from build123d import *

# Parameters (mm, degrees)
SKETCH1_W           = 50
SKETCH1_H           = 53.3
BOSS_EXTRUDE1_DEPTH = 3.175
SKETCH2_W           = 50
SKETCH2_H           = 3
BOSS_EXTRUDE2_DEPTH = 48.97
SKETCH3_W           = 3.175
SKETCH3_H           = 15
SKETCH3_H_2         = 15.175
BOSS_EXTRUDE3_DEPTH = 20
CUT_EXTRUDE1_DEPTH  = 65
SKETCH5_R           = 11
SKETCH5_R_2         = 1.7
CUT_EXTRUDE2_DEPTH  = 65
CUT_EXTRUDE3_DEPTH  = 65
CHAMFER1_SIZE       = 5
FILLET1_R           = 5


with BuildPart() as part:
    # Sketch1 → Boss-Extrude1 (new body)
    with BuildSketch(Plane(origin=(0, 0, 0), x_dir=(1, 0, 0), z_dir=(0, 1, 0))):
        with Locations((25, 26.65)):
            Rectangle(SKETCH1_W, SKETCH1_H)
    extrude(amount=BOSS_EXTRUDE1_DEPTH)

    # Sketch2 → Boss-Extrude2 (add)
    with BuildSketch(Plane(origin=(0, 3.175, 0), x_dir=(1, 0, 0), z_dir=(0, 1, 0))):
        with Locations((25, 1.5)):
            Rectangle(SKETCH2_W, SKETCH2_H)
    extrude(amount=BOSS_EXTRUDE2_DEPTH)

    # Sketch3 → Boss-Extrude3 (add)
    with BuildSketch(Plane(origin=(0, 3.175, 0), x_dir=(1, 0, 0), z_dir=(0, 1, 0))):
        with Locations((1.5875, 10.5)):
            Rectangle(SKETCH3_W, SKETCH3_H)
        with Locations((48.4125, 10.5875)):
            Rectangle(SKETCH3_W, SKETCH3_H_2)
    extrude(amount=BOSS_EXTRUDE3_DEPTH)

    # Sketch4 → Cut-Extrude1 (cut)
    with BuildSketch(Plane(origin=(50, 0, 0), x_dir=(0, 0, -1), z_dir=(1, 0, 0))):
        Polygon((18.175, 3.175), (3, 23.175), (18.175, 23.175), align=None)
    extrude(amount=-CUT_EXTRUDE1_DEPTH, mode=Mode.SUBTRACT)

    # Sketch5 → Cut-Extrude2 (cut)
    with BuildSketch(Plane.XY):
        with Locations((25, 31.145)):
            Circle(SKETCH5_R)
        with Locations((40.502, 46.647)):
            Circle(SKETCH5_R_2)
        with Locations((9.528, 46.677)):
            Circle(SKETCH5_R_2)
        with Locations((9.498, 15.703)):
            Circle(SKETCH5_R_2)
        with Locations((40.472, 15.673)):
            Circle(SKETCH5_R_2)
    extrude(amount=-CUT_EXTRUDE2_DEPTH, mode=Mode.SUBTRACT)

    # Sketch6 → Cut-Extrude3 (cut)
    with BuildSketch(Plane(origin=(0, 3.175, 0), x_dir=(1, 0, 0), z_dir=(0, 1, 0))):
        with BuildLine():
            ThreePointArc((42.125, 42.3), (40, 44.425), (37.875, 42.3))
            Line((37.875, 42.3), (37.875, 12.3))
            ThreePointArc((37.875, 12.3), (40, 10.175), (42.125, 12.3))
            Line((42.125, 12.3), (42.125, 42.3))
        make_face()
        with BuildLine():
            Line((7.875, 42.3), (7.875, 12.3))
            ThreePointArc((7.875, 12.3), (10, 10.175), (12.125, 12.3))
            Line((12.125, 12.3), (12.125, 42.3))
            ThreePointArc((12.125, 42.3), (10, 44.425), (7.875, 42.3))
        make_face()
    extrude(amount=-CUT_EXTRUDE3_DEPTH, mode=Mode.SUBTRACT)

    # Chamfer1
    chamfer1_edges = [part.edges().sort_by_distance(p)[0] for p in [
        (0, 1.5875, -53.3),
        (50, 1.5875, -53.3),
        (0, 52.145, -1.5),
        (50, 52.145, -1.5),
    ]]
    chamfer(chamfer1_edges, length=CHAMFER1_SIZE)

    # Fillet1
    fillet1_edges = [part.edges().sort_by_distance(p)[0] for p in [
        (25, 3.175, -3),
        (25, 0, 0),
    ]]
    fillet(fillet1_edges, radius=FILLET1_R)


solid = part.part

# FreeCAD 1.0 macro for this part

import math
import FreeCAD as App
import Part
import Sketcher
Q = App.Units.Quantity


def edges_at(feature, points):
    """Names of the edges that pass closest to the given points."""
    edges = feature.Shape.Edges
    near = lambda p: min(range(len(edges)), key=lambda i: edges[i].distToShape(Part.Vertex(*p))[0])
    return sorted({f"Edge{near(p) + 1}" for p in points})

doc = App.newDocument("Part")
body = doc.addObject("PartDesign::Body", "Body")

# Sketch on XZ plane
sketch1 = body.newObject("Sketcher::SketchObject", "Sketch")
sketch1.AttachmentSupport = (doc.getObject("XZ_Plane"), [""])
sketch1.MapMode = "FlatFace"
sketch1.addGeometry([
    Part.LineSegment(App.Vector(0, -53, 0), App.Vector(0, 0, 0)),
    Part.LineSegment(App.Vector(0, 0, 0), App.Vector(50, 0, 0)),
    Part.LineSegment(App.Vector(50, 0, 0), App.Vector(50, -53, 0)),
    Part.LineSegment(App.Vector(50, -53, 0), App.Vector(0, -53, 0)),
], False)
sketch1.addConstraint([
    Sketcher.Constraint("Coincident", 0, 2, 1, 1),
    Sketcher.Constraint("Coincident", 1, 2, 2, 1),
    Sketcher.Constraint("Coincident", 2, 2, 3, 1),
    Sketcher.Constraint("Coincident", 3, 2, 0, 1),
    Sketcher.Constraint("Vertical", 0),
    Sketcher.Constraint("Horizontal", 1),
    Sketcher.Constraint("Vertical", 2),
    Sketcher.Constraint("Horizontal", 3),
    Sketcher.Constraint("Coincident", 0, 2, -1, 1),
    Sketcher.Constraint("DistanceX", 1, 1, 1, 2, Q("50 mm")),
    Sketcher.Constraint("DistanceY", 0, 1, 0, 2, Q("53.3 mm")),
])
pad1 = body.newObject("PartDesign::Pad", "Pad")
pad1.Profile = sketch1
pad1.Length = 3.175
pad1.Reversed = True

# Sketch on XZ plane
sketch2 = body.newObject("Sketcher::SketchObject", "Sketch001")
sketch2.AttachmentSupport = (doc.getObject("XZ_Plane"), [""])
sketch2.MapMode = "FlatFace"
sketch2.AttachmentOffset = App.Placement(App.Vector(0, 0, -3.175), App.Rotation())
sketch2.addGeometry([
    Part.LineSegment(App.Vector(0, -3, 0), App.Vector(0, 0, 0)),
    Part.LineSegment(App.Vector(0, 0, 0), App.Vector(50, 0, 0)),
    Part.LineSegment(App.Vector(50, 0, 0), App.Vector(50, -3, 0)),
    Part.LineSegment(App.Vector(50, -3, 0), App.Vector(0, -3, 0)),
], False)
sketch2.addConstraint([
    Sketcher.Constraint("Coincident", 0, 2, 1, 1),
    Sketcher.Constraint("Coincident", 1, 2, 2, 1),
    Sketcher.Constraint("Coincident", 2, 2, 3, 1),
    Sketcher.Constraint("Coincident", 3, 2, 0, 1),
    Sketcher.Constraint("Vertical", 0),
    Sketcher.Constraint("Horizontal", 1),
    Sketcher.Constraint("Vertical", 2),
    Sketcher.Constraint("Horizontal", 3),
    Sketcher.Constraint("Coincident", 0, 2, -1, 1),
    Sketcher.Constraint("DistanceX", 1, 1, 1, 2, Q("50 mm")),
    Sketcher.Constraint("DistanceY", 0, 1, 0, 2, Q("3 mm")),
])
pad2 = body.newObject("PartDesign::Pad", "Pad001")
pad2.Profile = sketch2
pad2.Length = 48.97
pad2.Reversed = True

# Sketch on XZ plane
sketch3 = body.newObject("Sketcher::SketchObject", "Sketch002")
sketch3.AttachmentSupport = (doc.getObject("XZ_Plane"), [""])
sketch3.MapMode = "FlatFace"
sketch3.AttachmentOffset = App.Placement(App.Vector(0, 0, -3.175), App.Rotation())
sketch3.addGeometry([
    Part.LineSegment(App.Vector(0, -18, 0), App.Vector(0, -3, 0)),  # 0
    Part.LineSegment(App.Vector(0, -3, 0), App.Vector(3.2, -3, 0)),  # 1
    Part.LineSegment(App.Vector(3.2, -3, 0), App.Vector(3.2, -18, 0)),  # 2
    Part.LineSegment(App.Vector(3.2, -18, 0), App.Vector(0, -18, 0)),  # 3
    Part.LineSegment(App.Vector(46.8, -18.2, 0), App.Vector(46.8, -3, 0)),  # 4
    Part.LineSegment(App.Vector(46.8, -3, 0), App.Vector(50, -3, 0)),  # 5
    Part.LineSegment(App.Vector(50, -3, 0), App.Vector(50, -18.2, 0)),  # 6
    Part.LineSegment(App.Vector(50, -18.2, 0), App.Vector(46.8, -18.2, 0)),  # 7
], False)
sketch3.addConstraint([
    Sketcher.Constraint("Coincident", 0, 2, 1, 1),
    Sketcher.Constraint("Coincident", 1, 2, 2, 1),
    Sketcher.Constraint("Coincident", 2, 2, 3, 1),
    Sketcher.Constraint("Coincident", 3, 2, 0, 1),
    Sketcher.Constraint("Coincident", 4, 2, 5, 1),
    Sketcher.Constraint("Coincident", 5, 2, 6, 1),
    Sketcher.Constraint("Coincident", 6, 2, 7, 1),
    Sketcher.Constraint("Coincident", 7, 2, 4, 1),
    Sketcher.Constraint("Vertical", 0),
    Sketcher.Constraint("Horizontal", 1),
    Sketcher.Constraint("Vertical", 2),
    Sketcher.Constraint("Horizontal", 3),
    Sketcher.Constraint("Vertical", 4),
    Sketcher.Constraint("Horizontal", 5),
    Sketcher.Constraint("Vertical", 6),
    Sketcher.Constraint("Horizontal", 7),
    Sketcher.Constraint("PointOnObject", 0, 2, -2),
    Sketcher.Constraint("Horizontal", 1, 2, 4, 2),
    Sketcher.Constraint("Equal", 3, 5),
    Sketcher.Constraint("DistanceY", 0, 1, 0, 2, Q("15 mm")),
    Sketcher.Constraint("DistanceY", 0, 2, -1, 1, Q("3 mm")),
    Sketcher.Constraint("DistanceX", -1, 1, 5, 2, Q("50 mm")),
    Sketcher.Constraint("DistanceX", 1, 1, 1, 2, Q("3.175 mm")),
    Sketcher.Constraint("DistanceY", 4, 1, 4, 2, Q("15.175 mm")),
])
pad3 = body.newObject("PartDesign::Pad", "Pad002")
pad3.Profile = sketch3
pad3.Length = 20
pad3.Reversed = True

# Sketch on YZ plane
sketch4 = body.newObject("Sketcher::SketchObject", "Sketch003")
sketch4.AttachmentSupport = (doc.getObject("YZ_Plane"), [""])
sketch4.MapMode = "FlatFace"
sketch4.AttachmentOffset = App.Placement(App.Vector(0, 0, 50), App.Rotation())
sketch4.addGeometry([
    Part.LineSegment(App.Vector(23, -3, 0), App.Vector(3, -18, 0)),
    Part.LineSegment(App.Vector(3, -18, 0), App.Vector(23, -18, 0)),
    Part.LineSegment(App.Vector(23, -18, 0), App.Vector(23, -3, 0)),
], False)
sketch4.addConstraint([
    Sketcher.Constraint("Coincident", 0, 2, 1, 1),
    Sketcher.Constraint("Coincident", 1, 2, 2, 1),
    Sketcher.Constraint("Coincident", 2, 2, 0, 1),
    Sketcher.Constraint("Horizontal", 1),
    Sketcher.Constraint("Vertical", 2),
    Sketcher.Constraint("DistanceX", 1, 1, 1, 2, Q("20 mm")),
    Sketcher.Constraint("DistanceY", 2, 2, -1, 1, Q("3 mm")),
    Sketcher.Constraint("DistanceY", 2, 1, 2, 2, Q("15.175 mm")),
    Sketcher.Constraint("DistanceX", -1, 1, 0, 2, Q("3.175 mm")),
])
pocket1 = body.newObject("PartDesign::Pocket", "Pocket")
pocket1.Profile = sketch4
pocket1.Length = 65

# Sketch on XY plane
sketch5 = body.newObject("Sketcher::SketchObject", "Sketch004")
sketch5.AttachmentSupport = (doc.getObject("XY_Plane"), [""])
sketch5.MapMode = "FlatFace"
sketch5.addGeometry([
    Part.Circle(App.Vector(25, 31.1, 0), App.Vector(0, 0, 1), 11),  # 0
    Part.Circle(App.Vector(40.5, 46.6, 0), App.Vector(0, 0, 1), 1.7),  # 1
    Part.Circle(App.Vector(9.5, 46.7, 0), App.Vector(0, 0, 1), 1.7),  # 2
    Part.Circle(App.Vector(9.5, 15.7, 0), App.Vector(0, 0, 1), 1.7),  # 3
    Part.Circle(App.Vector(40.5, 15.7, 0), App.Vector(0, 0, 1), 1.7),  # 4
], False)
sketch5.addConstraint([
    Sketcher.Constraint("Equal", 1, 2),
    Sketcher.Constraint("Equal", 2, 3),
    Sketcher.Constraint("Equal", 3, 4),
    Sketcher.Constraint("Diameter", 0, Q("22 mm")),
    Sketcher.Constraint("Diameter", 1, Q("3.4 mm")),
    Sketcher.Constraint("DistanceX", -1, 1, 0, 3, Q("25 mm")),
    Sketcher.Constraint("DistanceY", 1, 3, 2, 3, Q("0.03 mm")),
    Sketcher.Constraint("DistanceX", 3, 3, 2, 3, Q("0.03 mm")),
    Sketcher.Constraint("DistanceX", 4, 3, 1, 3, Q("0.03 mm")),
    Sketcher.Constraint("DistanceY", 4, 3, 3, 3, Q("0.03 mm")),
    Sketcher.Constraint("DistanceY", -1, 1, 0, 3, Q("31.145 mm")),
    Sketcher.Constraint("DistanceX", -1, 1, 1, 3, Q("40.502 mm")),
    Sketcher.Constraint("DistanceY", -1, 1, 1, 3, Q("46.647 mm")),
    Sketcher.Constraint("DistanceX", -1, 1, 2, 3, Q("9.528 mm")),
    Sketcher.Constraint("DistanceY", -1, 1, 3, 3, Q("15.703 mm")),
])
pocket2 = body.newObject("PartDesign::Pocket", "Pocket001")
pocket2.Profile = sketch5
pocket2.Length = 65

# Sketch on XZ plane
sketch6 = body.newObject("Sketcher::SketchObject", "Sketch005")
sketch6.AttachmentSupport = (doc.getObject("XZ_Plane"), [""])
sketch6.MapMode = "FlatFace"
sketch6.AttachmentOffset = App.Placement(App.Vector(0, 0, -3.175), App.Rotation())
sketch6.addGeometry([
    Part.ArcOfCircle(Part.Circle(App.Vector(40, -42.3, 0), App.Vector(0, 0, 1), 2.1), math.radians(180), math.radians(360)),  # 0
    Part.LineSegment(App.Vector(37.9, -42.3, 0), App.Vector(37.9, -12.3, 0)),  # 1
    Part.ArcOfCircle(Part.Circle(App.Vector(40, -12.3, 0), App.Vector(0, 0, 1), 2.1), math.radians(0), math.radians(180)),  # 2
    Part.LineSegment(App.Vector(42.1, -12.3, 0), App.Vector(42.1, -42.3, 0)),  # 3
    Part.LineSegment(App.Vector(7.9, -42.3, 0), App.Vector(7.9, -12.3, 0)),  # 4
    Part.ArcOfCircle(Part.Circle(App.Vector(10, -12.3, 0), App.Vector(0, 0, 1), 2.1), math.radians(0), math.radians(180)),  # 5
    Part.LineSegment(App.Vector(12.1, -12.3, 0), App.Vector(12.1, -42.3, 0)),  # 6
    Part.ArcOfCircle(Part.Circle(App.Vector(10, -42.3, 0), App.Vector(0, 0, 1), 2.1), math.radians(180), math.radians(360)),  # 7
], False)
sketch6.addConstraint([
    Sketcher.Constraint("Tangent", 0, 1, 1, 1),
    Sketcher.Constraint("Tangent", 1, 2, 2, 2),
    Sketcher.Constraint("Tangent", 2, 1, 3, 1),
    Sketcher.Constraint("Tangent", 3, 2, 0, 2),
    Sketcher.Constraint("Tangent", 4, 2, 5, 2),
    Sketcher.Constraint("Tangent", 5, 1, 6, 1),
    Sketcher.Constraint("Tangent", 6, 2, 7, 2),
    Sketcher.Constraint("Tangent", 7, 1, 4, 1),
    Sketcher.Constraint("Vertical", 1),
    Sketcher.Constraint("Vertical", 3),
    Sketcher.Constraint("Vertical", 4),
    Sketcher.Constraint("Vertical", 6),
    Sketcher.Constraint("Equal", 2, 5),
    Sketcher.Constraint("Horizontal", 2, 3, 5, 3),
    Sketcher.Constraint("Horizontal", 0, 3, 7, 3),
    Sketcher.Constraint("DistanceY", 1, 1, 1, 2, Q("30 mm")),
    Sketcher.Constraint("DistanceX", -1, 1, 0, 3, Q("40 mm")),
    Sketcher.Constraint("DistanceX", -1, 1, 5, 3, Q("10 mm")),
    Sketcher.Constraint("Radius", 0, Q("2.125 mm")),
    Sketcher.Constraint("DistanceY", 0, 3, -1, 1, Q("42.3 mm")),
])
pocket3 = body.newObject("PartDesign::Pocket", "Pocket002")
pocket3.Profile = sketch6
pocket3.Length = 65
pocket3.Reversed = True
doc.recompute()

chamfer = body.newObject("PartDesign::Chamfer", "Chamfer")
chamfer.Base = (pocket3, edges_at(pocket3, [
    (0, 1.587, -53.3),
    (50, 1.587, -53.3),
    (0, 52.145, -1.5),
    (50, 52.145, -1.5),
]))
chamfer.Size = 5
doc.recompute()

fillet = body.newObject("PartDesign::Fillet", "Fillet")
fillet.Base = (chamfer, edges_at(chamfer, [(25, 3.175, -3), (25, 0, 0)]))
fillet.Radius = 5

doc.recompute()
